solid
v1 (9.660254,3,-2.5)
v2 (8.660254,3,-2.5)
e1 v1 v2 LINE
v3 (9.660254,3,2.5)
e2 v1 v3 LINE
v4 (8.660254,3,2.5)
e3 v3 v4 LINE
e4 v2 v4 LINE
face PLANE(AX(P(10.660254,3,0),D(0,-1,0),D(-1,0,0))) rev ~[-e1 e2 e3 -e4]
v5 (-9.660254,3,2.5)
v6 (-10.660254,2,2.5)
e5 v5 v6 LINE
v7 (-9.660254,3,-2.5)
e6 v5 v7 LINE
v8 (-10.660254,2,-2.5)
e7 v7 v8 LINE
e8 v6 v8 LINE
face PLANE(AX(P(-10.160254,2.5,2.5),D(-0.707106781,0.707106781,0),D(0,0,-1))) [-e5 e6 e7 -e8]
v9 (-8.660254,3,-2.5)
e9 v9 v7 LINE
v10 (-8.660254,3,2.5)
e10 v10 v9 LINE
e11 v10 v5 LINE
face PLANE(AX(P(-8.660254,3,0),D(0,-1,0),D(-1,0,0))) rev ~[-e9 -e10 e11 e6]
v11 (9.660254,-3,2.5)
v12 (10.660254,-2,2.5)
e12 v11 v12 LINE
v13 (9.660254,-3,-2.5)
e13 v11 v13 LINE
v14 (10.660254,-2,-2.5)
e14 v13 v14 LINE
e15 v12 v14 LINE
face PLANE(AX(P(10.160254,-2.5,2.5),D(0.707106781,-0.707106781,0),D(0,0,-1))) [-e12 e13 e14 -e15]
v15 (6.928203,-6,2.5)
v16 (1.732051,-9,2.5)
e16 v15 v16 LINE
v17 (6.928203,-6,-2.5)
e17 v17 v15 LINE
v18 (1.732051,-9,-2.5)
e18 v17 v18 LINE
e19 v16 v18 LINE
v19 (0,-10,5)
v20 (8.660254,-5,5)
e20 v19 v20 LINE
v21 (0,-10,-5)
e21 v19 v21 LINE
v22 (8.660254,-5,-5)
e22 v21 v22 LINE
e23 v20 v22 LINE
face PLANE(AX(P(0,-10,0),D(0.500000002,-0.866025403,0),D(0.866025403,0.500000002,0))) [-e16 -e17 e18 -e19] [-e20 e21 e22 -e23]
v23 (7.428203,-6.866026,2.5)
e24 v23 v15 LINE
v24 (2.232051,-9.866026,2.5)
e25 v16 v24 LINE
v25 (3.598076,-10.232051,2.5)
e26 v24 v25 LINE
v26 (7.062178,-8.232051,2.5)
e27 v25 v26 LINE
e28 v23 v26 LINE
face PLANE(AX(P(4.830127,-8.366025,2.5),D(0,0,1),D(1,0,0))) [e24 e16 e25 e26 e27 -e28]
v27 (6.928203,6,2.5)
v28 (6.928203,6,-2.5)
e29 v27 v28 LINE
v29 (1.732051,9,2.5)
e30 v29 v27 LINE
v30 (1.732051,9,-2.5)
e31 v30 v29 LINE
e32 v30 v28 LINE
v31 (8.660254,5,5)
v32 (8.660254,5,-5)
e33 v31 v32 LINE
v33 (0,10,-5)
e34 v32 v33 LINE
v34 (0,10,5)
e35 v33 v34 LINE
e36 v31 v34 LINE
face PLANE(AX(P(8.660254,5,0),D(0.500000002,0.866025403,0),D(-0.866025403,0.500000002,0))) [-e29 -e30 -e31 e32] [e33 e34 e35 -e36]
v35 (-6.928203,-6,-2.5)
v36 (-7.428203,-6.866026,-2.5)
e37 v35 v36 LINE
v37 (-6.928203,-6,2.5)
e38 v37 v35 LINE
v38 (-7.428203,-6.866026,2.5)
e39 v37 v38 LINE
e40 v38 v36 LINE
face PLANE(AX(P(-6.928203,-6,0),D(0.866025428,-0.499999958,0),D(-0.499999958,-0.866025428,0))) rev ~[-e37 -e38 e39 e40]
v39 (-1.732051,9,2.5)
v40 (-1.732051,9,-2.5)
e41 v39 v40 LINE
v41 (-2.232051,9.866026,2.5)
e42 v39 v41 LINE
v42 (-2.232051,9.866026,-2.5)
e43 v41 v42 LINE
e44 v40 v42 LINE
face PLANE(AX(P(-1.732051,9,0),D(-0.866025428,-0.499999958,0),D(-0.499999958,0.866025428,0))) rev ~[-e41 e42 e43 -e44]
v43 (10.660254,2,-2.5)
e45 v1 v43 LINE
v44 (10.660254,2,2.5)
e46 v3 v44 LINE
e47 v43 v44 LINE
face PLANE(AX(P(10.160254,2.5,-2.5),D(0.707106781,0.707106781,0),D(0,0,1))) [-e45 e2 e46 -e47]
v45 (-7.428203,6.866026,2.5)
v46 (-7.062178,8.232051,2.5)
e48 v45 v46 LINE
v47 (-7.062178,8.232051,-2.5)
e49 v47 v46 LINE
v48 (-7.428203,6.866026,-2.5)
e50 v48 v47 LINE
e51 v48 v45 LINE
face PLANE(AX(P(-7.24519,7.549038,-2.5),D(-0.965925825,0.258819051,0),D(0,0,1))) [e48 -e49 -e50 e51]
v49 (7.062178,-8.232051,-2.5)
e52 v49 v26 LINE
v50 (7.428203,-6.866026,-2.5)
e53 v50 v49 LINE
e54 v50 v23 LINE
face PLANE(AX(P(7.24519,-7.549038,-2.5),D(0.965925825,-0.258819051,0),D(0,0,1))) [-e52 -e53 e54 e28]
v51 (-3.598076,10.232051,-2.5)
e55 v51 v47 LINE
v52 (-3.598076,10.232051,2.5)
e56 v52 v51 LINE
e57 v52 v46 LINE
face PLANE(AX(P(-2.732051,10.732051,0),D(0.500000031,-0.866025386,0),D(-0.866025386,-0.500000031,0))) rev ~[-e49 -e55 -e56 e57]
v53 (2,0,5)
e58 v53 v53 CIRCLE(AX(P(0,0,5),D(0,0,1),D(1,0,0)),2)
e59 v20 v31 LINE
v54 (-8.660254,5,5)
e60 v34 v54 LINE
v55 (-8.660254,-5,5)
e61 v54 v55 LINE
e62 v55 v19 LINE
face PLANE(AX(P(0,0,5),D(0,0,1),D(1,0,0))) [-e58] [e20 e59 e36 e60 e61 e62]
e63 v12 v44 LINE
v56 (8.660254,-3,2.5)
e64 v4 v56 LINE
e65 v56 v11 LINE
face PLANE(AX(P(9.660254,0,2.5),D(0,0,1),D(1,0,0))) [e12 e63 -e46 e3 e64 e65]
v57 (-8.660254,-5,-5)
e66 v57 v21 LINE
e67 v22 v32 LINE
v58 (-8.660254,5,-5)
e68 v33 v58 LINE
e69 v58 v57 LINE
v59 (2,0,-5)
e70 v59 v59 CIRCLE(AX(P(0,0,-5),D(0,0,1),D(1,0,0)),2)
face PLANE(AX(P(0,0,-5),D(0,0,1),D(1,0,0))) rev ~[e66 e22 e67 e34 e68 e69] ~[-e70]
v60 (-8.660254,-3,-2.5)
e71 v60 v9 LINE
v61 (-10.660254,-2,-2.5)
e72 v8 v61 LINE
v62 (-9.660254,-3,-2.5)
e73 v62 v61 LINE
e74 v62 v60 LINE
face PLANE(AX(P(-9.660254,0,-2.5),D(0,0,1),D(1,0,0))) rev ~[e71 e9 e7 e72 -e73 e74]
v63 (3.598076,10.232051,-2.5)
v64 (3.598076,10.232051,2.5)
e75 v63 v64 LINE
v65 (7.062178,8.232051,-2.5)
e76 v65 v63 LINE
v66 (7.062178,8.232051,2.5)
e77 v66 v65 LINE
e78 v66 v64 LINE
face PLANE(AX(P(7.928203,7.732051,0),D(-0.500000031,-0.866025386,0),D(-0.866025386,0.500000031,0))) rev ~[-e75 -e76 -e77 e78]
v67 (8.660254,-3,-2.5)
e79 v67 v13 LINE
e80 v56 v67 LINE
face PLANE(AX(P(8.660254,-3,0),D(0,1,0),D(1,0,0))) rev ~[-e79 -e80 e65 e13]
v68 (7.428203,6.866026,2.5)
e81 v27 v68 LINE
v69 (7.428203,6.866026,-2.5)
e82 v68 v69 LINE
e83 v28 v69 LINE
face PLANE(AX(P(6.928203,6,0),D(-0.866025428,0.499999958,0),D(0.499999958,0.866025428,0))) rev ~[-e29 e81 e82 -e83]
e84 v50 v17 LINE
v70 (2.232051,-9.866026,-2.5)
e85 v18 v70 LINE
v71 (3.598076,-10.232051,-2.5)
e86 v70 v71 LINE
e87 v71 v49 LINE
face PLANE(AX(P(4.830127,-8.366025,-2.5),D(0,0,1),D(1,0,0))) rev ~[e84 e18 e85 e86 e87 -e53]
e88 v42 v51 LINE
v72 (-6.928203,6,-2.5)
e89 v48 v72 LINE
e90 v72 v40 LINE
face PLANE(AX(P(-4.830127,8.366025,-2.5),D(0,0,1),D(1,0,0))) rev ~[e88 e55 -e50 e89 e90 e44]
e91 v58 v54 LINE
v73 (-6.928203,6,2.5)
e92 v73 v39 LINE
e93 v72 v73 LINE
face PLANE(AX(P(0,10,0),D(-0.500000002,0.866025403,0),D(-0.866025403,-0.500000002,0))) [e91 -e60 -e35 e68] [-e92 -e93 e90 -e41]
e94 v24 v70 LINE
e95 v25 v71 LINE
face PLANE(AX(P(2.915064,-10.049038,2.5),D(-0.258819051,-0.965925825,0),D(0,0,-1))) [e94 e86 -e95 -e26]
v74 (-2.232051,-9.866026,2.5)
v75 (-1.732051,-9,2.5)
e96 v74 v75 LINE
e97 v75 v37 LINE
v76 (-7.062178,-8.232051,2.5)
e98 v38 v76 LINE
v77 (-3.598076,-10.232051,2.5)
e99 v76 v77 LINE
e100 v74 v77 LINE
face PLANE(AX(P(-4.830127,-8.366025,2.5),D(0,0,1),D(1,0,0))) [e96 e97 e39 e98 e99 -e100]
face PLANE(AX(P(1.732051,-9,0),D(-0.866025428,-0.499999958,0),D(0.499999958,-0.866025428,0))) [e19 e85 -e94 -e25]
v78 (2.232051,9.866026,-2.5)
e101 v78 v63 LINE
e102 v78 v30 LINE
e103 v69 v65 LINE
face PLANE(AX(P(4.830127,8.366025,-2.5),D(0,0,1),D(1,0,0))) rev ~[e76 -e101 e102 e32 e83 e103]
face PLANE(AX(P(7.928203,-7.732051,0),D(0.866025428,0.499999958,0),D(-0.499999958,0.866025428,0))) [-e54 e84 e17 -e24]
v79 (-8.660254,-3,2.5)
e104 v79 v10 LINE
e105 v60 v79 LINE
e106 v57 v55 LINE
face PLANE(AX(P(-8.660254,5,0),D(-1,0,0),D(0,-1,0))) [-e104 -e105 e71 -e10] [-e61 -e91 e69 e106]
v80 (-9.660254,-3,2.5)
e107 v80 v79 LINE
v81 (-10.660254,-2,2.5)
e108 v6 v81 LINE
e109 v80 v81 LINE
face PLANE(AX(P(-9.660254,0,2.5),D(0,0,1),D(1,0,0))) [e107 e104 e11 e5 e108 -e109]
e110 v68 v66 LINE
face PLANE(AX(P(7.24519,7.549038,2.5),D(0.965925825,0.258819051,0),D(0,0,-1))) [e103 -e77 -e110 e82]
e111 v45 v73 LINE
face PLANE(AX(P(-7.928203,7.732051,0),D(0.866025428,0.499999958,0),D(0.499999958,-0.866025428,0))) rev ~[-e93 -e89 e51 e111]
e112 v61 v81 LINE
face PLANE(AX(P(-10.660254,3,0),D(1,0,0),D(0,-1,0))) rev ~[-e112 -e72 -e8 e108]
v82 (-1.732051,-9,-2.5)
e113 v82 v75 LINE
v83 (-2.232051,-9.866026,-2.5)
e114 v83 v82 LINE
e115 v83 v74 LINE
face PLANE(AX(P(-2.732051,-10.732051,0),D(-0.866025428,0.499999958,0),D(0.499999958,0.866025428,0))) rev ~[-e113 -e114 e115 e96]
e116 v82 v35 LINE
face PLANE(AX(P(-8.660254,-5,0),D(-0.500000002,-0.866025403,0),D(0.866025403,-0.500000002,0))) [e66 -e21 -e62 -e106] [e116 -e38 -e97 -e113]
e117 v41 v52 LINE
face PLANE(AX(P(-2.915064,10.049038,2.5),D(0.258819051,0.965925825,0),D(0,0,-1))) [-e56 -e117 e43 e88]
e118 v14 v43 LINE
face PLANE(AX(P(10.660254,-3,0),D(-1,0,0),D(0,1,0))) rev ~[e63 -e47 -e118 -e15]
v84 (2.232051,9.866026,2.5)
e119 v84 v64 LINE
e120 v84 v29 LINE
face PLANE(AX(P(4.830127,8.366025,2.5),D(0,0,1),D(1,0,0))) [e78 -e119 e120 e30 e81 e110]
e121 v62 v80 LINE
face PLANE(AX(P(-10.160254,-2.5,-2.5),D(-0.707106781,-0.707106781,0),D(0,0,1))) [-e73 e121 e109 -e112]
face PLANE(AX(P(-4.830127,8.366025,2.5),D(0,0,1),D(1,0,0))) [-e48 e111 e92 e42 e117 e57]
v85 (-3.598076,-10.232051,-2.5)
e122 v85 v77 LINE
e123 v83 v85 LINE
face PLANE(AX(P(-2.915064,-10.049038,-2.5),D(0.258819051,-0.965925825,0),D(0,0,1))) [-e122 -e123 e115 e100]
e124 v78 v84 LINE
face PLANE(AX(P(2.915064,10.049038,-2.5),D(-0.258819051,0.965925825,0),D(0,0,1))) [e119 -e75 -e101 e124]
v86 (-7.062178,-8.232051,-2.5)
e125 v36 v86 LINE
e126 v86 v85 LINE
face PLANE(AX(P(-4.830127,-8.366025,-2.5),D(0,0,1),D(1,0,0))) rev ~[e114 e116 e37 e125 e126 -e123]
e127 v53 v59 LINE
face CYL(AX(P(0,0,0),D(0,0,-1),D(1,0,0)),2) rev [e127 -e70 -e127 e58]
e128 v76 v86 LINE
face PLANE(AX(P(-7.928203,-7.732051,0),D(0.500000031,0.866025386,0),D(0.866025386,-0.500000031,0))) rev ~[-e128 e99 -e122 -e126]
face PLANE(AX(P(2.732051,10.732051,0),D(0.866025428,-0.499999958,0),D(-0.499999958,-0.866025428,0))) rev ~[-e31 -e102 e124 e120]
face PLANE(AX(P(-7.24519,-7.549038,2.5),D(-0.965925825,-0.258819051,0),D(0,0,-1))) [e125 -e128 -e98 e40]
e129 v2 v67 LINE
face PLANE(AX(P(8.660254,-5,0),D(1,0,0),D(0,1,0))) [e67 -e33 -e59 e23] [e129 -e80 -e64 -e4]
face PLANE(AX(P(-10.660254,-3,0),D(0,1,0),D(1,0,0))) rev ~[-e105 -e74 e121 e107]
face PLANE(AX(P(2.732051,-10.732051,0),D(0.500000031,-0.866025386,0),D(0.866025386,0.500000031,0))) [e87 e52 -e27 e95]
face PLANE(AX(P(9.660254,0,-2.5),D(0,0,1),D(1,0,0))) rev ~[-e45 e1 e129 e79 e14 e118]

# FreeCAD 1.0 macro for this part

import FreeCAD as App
import Part
import Sketcher
from FreeCAD import Vector
Q = App.Units.Quantity


def edges_at(feature, points):
    """Names of the edges that pass closest to the given points."""
    edges = feature.Shape.Edges
    near = lambda p: min(range(len(edges)), key=lambda i: edges[i].distToShape(Part.Vertex(*p))[0])
    return sorted({f"Edge{near(p) + 1}" for p in points})

doc = App.newDocument("Part")
body = doc.addObject("PartDesign::Body", "Body")

# Sketch on XY plane
sketch1 = body.newObject("Sketcher::SketchObject", "Sketch")
sketch1.AttachmentSupport = (doc.getObject("XY_Plane"), [""])
sketch1.MapMode = "FlatFace"
sketch1.addGeometry(Part.LineSegment(Vector(8.660254, 5, 0), Vector(0, 10, 0)), False)
sketch1.addGeometry(Part.LineSegment(Vector(0, 10, 0), Vector(-8.660254, 5, 0)), False)
sketch1.addGeometry(Part.LineSegment(Vector(-8.660254, 5, 0), Vector(-8.660254, -5, 0)), False)
sketch1.addGeometry(Part.LineSegment(Vector(-8.660254, -5, 0), Vector(0, -10, 0)), False)
sketch1.addGeometry(Part.LineSegment(Vector(0, -10, 0), Vector(8.660254, -5, 0)), False)
sketch1.addGeometry(Part.LineSegment(Vector(8.660254, -5, 0), Vector(8.660254, 5, 0)), False)
sketch1.addGeometry(Part.Circle(Vector(0, 0, 0), Vector(0, 0, 1), 2), False)
sketch1.addConstraint(Sketcher.Constraint("Coincident", 0, 2, 1, 1))
sketch1.addConstraint(Sketcher.Constraint("Coincident", 1, 2, 2, 1))
sketch1.addConstraint(Sketcher.Constraint("Coincident", 2, 2, 3, 1))
sketch1.addConstraint(Sketcher.Constraint("Coincident", 3, 2, 4, 1))
sketch1.addConstraint(Sketcher.Constraint("Coincident", 4, 2, 5, 1))
sketch1.addConstraint(Sketcher.Constraint("Coincident", 5, 2, 0, 1))
sketch1.addConstraint(Sketcher.Constraint("Vertical", 2))
sketch1.addConstraint(Sketcher.Constraint("Vertical", 5))
sketch1.addConstraint(Sketcher.Constraint("Coincident", 6, 3, -1, 1))
sketch1.addConstraint(Sketcher.Constraint("Symmetric", 0, 2, 3, 2, -1, 1))
sketch1.addConstraint(Sketcher.Constraint("Symmetric", 1, 2, 4, 2, -1, 1))
sketch1.addConstraint(Sketcher.Constraint("PointOnObject", 0, 2, -2))
sketch1.addConstraint(Sketcher.Constraint("Parallel", 0, 3))
sketch1.addConstraint(Sketcher.Constraint("Horizontal", 2, 2, 4, 2))
sketch1.addConstraint(Sketcher.Constraint("Diameter", 6, 4.0))
sketch1.addConstraint(Sketcher.Constraint("DistanceY", 2, 2, 2, 1, 10.0))
sketch1.addConstraint(Sketcher.Constraint("Angle", 0, Q("150 deg")))
sketch1.addConstraint(Sketcher.Constraint("Distance", 0, 10.0))
pad1 = body.newObject("PartDesign::Pad", "Pad")
pad1.Profile = sketch1
pad1.Length = 10
pad1.Midplane = True

# Sketch on XY plane
sketch2 = body.newObject("Sketcher::SketchObject", "Sketch001")
sketch2.AttachmentSupport = (doc.getObject("XY_Plane"), [""])
sketch2.MapMode = "FlatFace"
sketch2.addGeometry(Part.LineSegment(Vector(10.660254, -3, 0), Vector(10.660254, 3, 0)), False)
sketch2.addGeometry(Part.LineSegment(Vector(10.660254, 3, 0), Vector(8.660254, 3, 0)), False)
sketch2.addGeometry(Part.LineSegment(Vector(8.660254, 3, 0), Vector(8.660254, -3, 0)), False)
sketch2.addGeometry(Part.LineSegment(Vector(8.660254, -3, 0), Vector(10.660254, -3, 0)), False)
sketch2.addGeometry(Part.LineSegment(Vector(7.928203, 7.732051, 0), Vector(2.732051, 10.732051, 0)), False)
sketch2.addGeometry(Part.LineSegment(Vector(2.732051, 10.732051, 0), Vector(1.732051, 9, 0)), False)
sketch2.addGeometry(Part.LineSegment(Vector(1.732051, 9, 0), Vector(6.928203, 6, 0)), False)
sketch2.addGeometry(Part.LineSegment(Vector(6.928203, 6, 0), Vector(7.928203, 7.732051, 0)), False)
sketch2.addGeometry(Part.LineSegment(Vector(-2.732051, 10.732051, 0), Vector(-7.928203, 7.732051, 0)), False)
sketch2.addGeometry(Part.LineSegment(Vector(-7.928203, 7.732051, 0), Vector(-6.928203, 6, 0)), False)
sketch2.addGeometry(Part.LineSegment(Vector(-6.928203, 6, 0), Vector(-1.732051, 9, 0)), False)
sketch2.addGeometry(Part.LineSegment(Vector(-1.732051, 9, 0), Vector(-2.732051, 10.732051, 0)), False)
sketch2.addGeometry(Part.LineSegment(Vector(-10.660254, 3, 0), Vector(-10.660254, -3, 0)), False)
sketch2.addGeometry(Part.LineSegment(Vector(-10.660254, -3, 0), Vector(-8.660254, -3, 0)), False)
sketch2.addGeometry(Part.LineSegment(Vector(-8.660254, -3, 0), Vector(-8.660254, 3, 0)), False)
sketch2.addGeometry(Part.LineSegment(Vector(-8.660254, 3, 0), Vector(-10.660254, 3, 0)), False)
sketch2.addGeometry(Part.LineSegment(Vector(-7.928203, -7.732051, 0), Vector(-2.732051, -10.732051, 0)), False)
sketch2.addGeometry(Part.LineSegment(Vector(-2.732051, -10.732051, 0), Vector(-1.732051, -9, 0)), False)
sketch2.addGeometry(Part.LineSegment(Vector(-1.732051, -9, 0), Vector(-6.928203, -6, 0)), False)
sketch2.addGeometry(Part.LineSegment(Vector(-6.928203, -6, 0), Vector(-7.928203, -7.732051, 0)), False)
sketch2.addGeometry(Part.LineSegment(Vector(2.732051, -10.732051, 0), Vector(7.928203, -7.732051, 0)), False)
sketch2.addGeometry(Part.LineSegment(Vector(7.928203, -7.732051, 0), Vector(6.928203, -6, 0)), False)
sketch2.addGeometry(Part.LineSegment(Vector(6.928203, -6, 0), Vector(1.732051, -9, 0)), False)
sketch2.addGeometry(Part.LineSegment(Vector(1.732051, -9, 0), Vector(2.732051, -10.732051, 0)), False)
sketch2.addConstraint(Sketcher.Constraint("Coincident", 0, 2, 1, 1))
sketch2.addConstraint(Sketcher.Constraint("Coincident", 1, 2, 2, 1))
sketch2.addConstraint(Sketcher.Constraint("Coincident", 2, 2, 3, 1))
sketch2.addConstraint(Sketcher.Constraint("Coincident", 3, 2, 0, 1))
sketch2.addConstraint(Sketcher.Constraint("Coincident", 4, 2, 5, 1))
sketch2.addConstraint(Sketcher.Constraint("Coincident", 5, 2, 6, 1))
sketch2.addConstraint(Sketcher.Constraint("Coincident", 6, 2, 7, 1))
sketch2.addConstraint(Sketcher.Constraint("Coincident", 7, 2, 4, 1))
sketch2.addConstraint(Sketcher.Constraint("Coincident", 8, 2, 9, 1))
sketch2.addConstraint(Sketcher.Constraint("Coincident", 9, 2, 10, 1))
sketch2.addConstraint(Sketcher.Constraint("Coincident", 10, 2, 11, 1))
sketch2.addConstraint(Sketcher.Constraint("Coincident", 11, 2, 8, 1))
sketch2.addConstraint(Sketcher.Constraint("Coincident", 12, 2, 13, 1))
sketch2.addConstraint(Sketcher.Constraint("Coincident", 13, 2, 14, 1))
sketch2.addConstraint(Sketcher.Constraint("Coincident", 14, 2, 15, 1))
sketch2.addConstraint(Sketcher.Constraint("Coincident", 15, 2, 12, 1))
sketch2.addConstraint(Sketcher.Constraint("Coincident", 16, 2, 17, 1))
sketch2.addConstraint(Sketcher.Constraint("Coincident", 17, 2, 18, 1))
sketch2.addConstraint(Sketcher.Constraint("Coincident", 18, 2, 19, 1))
sketch2.addConstraint(Sketcher.Constraint("Coincident", 19, 2, 16, 1))
sketch2.addConstraint(Sketcher.Constraint("Coincident", 20, 2, 21, 1))
sketch2.addConstraint(Sketcher.Constraint("Coincident", 21, 2, 22, 1))
sketch2.addConstraint(Sketcher.Constraint("Coincident", 22, 2, 23, 1))
sketch2.addConstraint(Sketcher.Constraint("Coincident", 23, 2, 20, 1))
sketch2.addConstraint(Sketcher.Constraint("Vertical", 0))
sketch2.addConstraint(Sketcher.Constraint("Horizontal", 1))
sketch2.addConstraint(Sketcher.Constraint("Vertical", 2))
sketch2.addConstraint(Sketcher.Constraint("Horizontal", 3))
sketch2.addConstraint(Sketcher.Constraint("Vertical", 12))
sketch2.addConstraint(Sketcher.Constraint("Horizontal", 13))
sketch2.addConstraint(Sketcher.Constraint("Vertical", 14))
sketch2.addConstraint(Sketcher.Constraint("Horizontal", 15))
sketch2.addConstraint(Sketcher.Constraint("Symmetric", 0, 2, 12, 2, -1, 1))
sketch2.addConstraint(Sketcher.Constraint("Symmetric", 2, 2, 14, 2, -1, 1))
sketch2.addConstraint(Sketcher.Constraint("Symmetric", 4, 2, 16, 2, -1, 1))
sketch2.addConstraint(Sketcher.Constraint("Symmetric", 5, 2, 17, 2, -1, 1))
sketch2.addConstraint(Sketcher.Constraint("Symmetric", 6, 2, 18, 2, -1, 1))
sketch2.addConstraint(Sketcher.Constraint("Symmetric", 7, 2, 19, 2, -1, 1))
sketch2.addConstraint(Sketcher.Constraint("Symmetric", 8, 2, 20, 2, -1, 1))
sketch2.addConstraint(Sketcher.Constraint("Symmetric", 9, 2, 21, 2, -1, 1))
sketch2.addConstraint(Sketcher.Constraint("Symmetric", 10, 2, 22, 2, -1, 1))
sketch2.addConstraint(Sketcher.Constraint("Symmetric", 11, 2, 23, 2, -1, 1))
sketch2.addConstraint(Sketcher.Constraint("Symmetric", 7, 2, 8, 2, -2))
sketch2.addConstraint(Sketcher.Constraint("Symmetric", 6, 2, 9, 2, -2))
sketch2.addConstraint(Sketcher.Constraint("Symmetric", 5, 2, 10, 2, -2))
sketch2.addConstraint(Sketcher.Constraint("Symmetric", 4, 2, 11, 2, -2))
sketch2.addConstraint(Sketcher.Constraint("Perpendicular", 4, 5))
sketch2.addConstraint(Sketcher.Constraint("Perpendicular", 5, 6))
sketch2.addConstraint(Sketcher.Constraint("Perpendicular", 6, 7))
sketch2.addConstraint(Sketcher.Constraint("Horizontal", 3, 2, 12, 2))
sketch2.addConstraint(Sketcher.Constraint("DistanceX", 1, 2, 1, 1, 2.0))
sketch2.addConstraint(Sketcher.Constraint("DistanceY", 0, 1, 0, 2, 6.0))
sketch2.addConstraint(Sketcher.Constraint("Angle", 4, Q("149.999998 deg")))
sketch2.addConstraint(Sketcher.Constraint("Distance", 4, 6.0))
sketch2.addConstraint(Sketcher.Constraint("Distance", 5, 2.0))
sketch2.addConstraint(Sketcher.Constraint("DistanceY", -1, 1, 5, 2, 9.0))
sketch2.addConstraint(Sketcher.Constraint("DistanceX", 10, 2, 5, 2, 3.464102))
sketch2.addConstraint(Sketcher.Constraint("DistanceX", 6, 2, 1, 2, 1.732051))
pad2 = body.newObject("PartDesign::Pad", "Pad001")
pad2.Profile = sketch2
pad2.Length = 5
pad2.Midplane = True
doc.recompute()

chamfer = body.newObject("PartDesign::Chamfer", "Chamfer")
chamfer.Base = (pad2, edges_at(pad2, [
    (10.66, 3, 0),
    (10.66, -3, 0),
    (7.928, -7.732, 0),
    (2.732, -10.732, 0),
    (-2.732, -10.732, 0),
    (-7.928, -7.732, 0),
    (-10.66, -3, 0),
    (-10.66, 3, 0),
    (-7.928, 7.732, 0),
    (-2.732, 10.732, 0),
    (2.732, 10.732, 0),
    (7.928, 7.732, 0),
]))
chamfer.Size = 1

doc.recompute()
